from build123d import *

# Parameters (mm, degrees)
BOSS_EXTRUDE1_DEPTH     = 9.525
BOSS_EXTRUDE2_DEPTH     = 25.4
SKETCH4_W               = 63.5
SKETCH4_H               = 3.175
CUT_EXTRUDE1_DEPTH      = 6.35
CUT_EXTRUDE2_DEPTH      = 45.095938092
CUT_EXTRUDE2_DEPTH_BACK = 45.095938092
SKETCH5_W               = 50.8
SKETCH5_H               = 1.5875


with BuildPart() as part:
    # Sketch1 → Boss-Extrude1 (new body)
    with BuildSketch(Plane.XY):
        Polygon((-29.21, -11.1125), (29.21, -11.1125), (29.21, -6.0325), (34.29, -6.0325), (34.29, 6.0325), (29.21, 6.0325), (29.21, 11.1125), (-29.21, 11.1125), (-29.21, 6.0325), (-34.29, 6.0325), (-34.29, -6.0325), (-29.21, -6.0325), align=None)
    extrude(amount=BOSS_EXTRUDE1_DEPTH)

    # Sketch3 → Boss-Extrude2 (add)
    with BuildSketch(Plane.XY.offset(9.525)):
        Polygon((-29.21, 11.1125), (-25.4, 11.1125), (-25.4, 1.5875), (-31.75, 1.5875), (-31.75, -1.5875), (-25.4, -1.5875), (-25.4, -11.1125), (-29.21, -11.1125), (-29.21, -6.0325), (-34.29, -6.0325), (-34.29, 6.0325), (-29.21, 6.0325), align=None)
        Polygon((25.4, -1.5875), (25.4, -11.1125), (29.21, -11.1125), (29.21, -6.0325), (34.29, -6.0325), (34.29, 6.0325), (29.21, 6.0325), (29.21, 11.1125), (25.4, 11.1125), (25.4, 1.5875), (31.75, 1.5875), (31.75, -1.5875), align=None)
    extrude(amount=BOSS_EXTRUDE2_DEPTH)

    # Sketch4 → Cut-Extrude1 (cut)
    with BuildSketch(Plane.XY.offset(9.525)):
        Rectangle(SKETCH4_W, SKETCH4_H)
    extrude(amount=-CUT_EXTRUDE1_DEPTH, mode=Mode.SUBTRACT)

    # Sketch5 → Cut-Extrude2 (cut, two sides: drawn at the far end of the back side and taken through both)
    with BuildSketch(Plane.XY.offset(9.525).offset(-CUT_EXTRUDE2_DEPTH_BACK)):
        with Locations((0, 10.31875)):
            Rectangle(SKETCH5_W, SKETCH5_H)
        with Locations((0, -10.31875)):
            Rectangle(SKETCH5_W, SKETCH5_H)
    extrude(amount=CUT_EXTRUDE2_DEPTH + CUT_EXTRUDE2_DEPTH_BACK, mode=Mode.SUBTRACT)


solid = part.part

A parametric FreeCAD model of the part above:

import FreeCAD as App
import Part
import Sketcher

V = App.Vector
Q = App.Units.Quantity

doc = App.newDocument("Part")
params = doc.addObject("Spreadsheet::Sheet", "Params")
for row, (alias, value) in enumerate([
    ("sketch1_width", "2.3 in"),
    ("sketch1_width2", "0.2 in"),
    ("sketch1_height", "0.475 in"),
    ("pad1_length", "0.375 in"),
    ("sketch2_width", "0.2 in"),
    ("sketch2_width2", "0.15 in"),
    ("sketch2_width3", "0.25 in"),
    ("sketch2_height", "0.475 in"),
    ("pad2_length", "1 in"),
    ("sketch3_width", "2.5 in"),
    ("sketch3_height", "0.125 in"),
    ("pocket1_length", "0.25 in"),
    ("sketch4_width", "2 in"),
    ("sketch4_height", "0.0625 in"),
], start=1):
    params.set(f"A{row}", alias)
    params.set(f"B{row}", "=" + value)
    params.setAlias(f"B{row}", alias)

body = doc.addObject("PartDesign::Body", "Body")

# Sketch on XY plane
sketch1 = doc.addObject("Sketcher::SketchObject", "Sketch")
body.addObject(sketch1)
sketch1.AttachmentSupport = (doc.XY_Plane, [""])
sketch1.MapMode = "FlatFace"
sketch1.addGeometry(Part.LineSegment(V(-29.21, -11.1125, 0), V(29.21, -11.1125, 0)), False)
sketch1.addGeometry(Part.LineSegment(V(29.21, -11.1125, 0), V(29.21, -6.0325, 0)), False)
sketch1.addGeometry(Part.LineSegment(V(29.21, -6.0325, 0), V(34.29, -6.0325, 0)), False)
sketch1.addGeometry(Part.LineSegment(V(34.29, -6.0325, 0), V(34.29, 6.0325, 0)), False)
sketch1.addGeometry(Part.LineSegment(V(34.29, 6.0325, 0), V(29.21, 6.0325, 0)), False)
sketch1.addGeometry(Part.LineSegment(V(29.21, 6.0325, 0), V(29.21, 11.1125, 0)), False)
sketch1.addGeometry(Part.LineSegment(V(29.21, 11.1125, 0), V(-29.21, 11.1125, 0)), False)
sketch1.addGeometry(Part.LineSegment(V(-29.21, 11.1125, 0), V(-29.21, 6.0325, 0)), False)
sketch1.addGeometry(Part.LineSegment(V(-29.21, 6.0325, 0), V(-34.29, 6.0325, 0)), False)
sketch1.addGeometry(Part.LineSegment(V(-34.29, 6.0325, 0), V(-34.29, -6.0325, 0)), False)
sketch1.addGeometry(Part.LineSegment(V(-34.29, -6.0325, 0), V(-29.21, -6.0325, 0)), False)
sketch1.addGeometry(Part.LineSegment(V(-29.21, -6.0325, 0), V(-29.21, -11.1125, 0)), False)
sketch1.addConstraint(Sketcher.Constraint("Coincident", 0, 2, 1, 1))
sketch1.addConstraint(Sketcher.Constraint("Coincident", 1, 2, 2, 1))
sketch1.addConstraint(Sketcher.Constraint("Coincident", 2, 2, 3, 1))
sketch1.addConstraint(Sketcher.Constraint("Coincident", 3, 2, 4, 1))
sketch1.addConstraint(Sketcher.Constraint("Coincident", 4, 2, 5, 1))
sketch1.addConstraint(Sketcher.Constraint("Coincident", 5, 2, 6, 1))
sketch1.addConstraint(Sketcher.Constraint("Coincident", 6, 2, 7, 1))
sketch1.addConstraint(Sketcher.Constraint("Coincident", 7, 2, 8, 1))
sketch1.addConstraint(Sketcher.Constraint("Coincident", 8, 2, 9, 1))
sketch1.addConstraint(Sketcher.Constraint("Coincident", 9, 2, 10, 1))
sketch1.addConstraint(Sketcher.Constraint("Coincident", 10, 2, 11, 1))
sketch1.addConstraint(Sketcher.Constraint("Coincident", 11, 2, 0, 1))
sketch1.addConstraint(Sketcher.Constraint("Horizontal", 0))
sketch1.addConstraint(Sketcher.Constraint("Vertical", 1))
sketch1.addConstraint(Sketcher.Constraint("Horizontal", 2))
sketch1.addConstraint(Sketcher.Constraint("Vertical", 3))
sketch1.addConstraint(Sketcher.Constraint("Horizontal", 4))
sketch1.addConstraint(Sketcher.Constraint("Vertical", 5))
sketch1.addConstraint(Sketcher.Constraint("Horizontal", 6))
sketch1.addConstraint(Sketcher.Constraint("Vertical", 7))
sketch1.addConstraint(Sketcher.Constraint("Horizontal", 8))
sketch1.addConstraint(Sketcher.Constraint("Vertical", 9))
sketch1.addConstraint(Sketcher.Constraint("Horizontal", 10))
sketch1.addConstraint(Sketcher.Constraint("Vertical", 11))
sketch1.addConstraint(Sketcher.Constraint("Symmetric", 0, 2, 6, 2, -1, 1))
sketch1.addConstraint(Sketcher.Constraint("Symmetric", 2, 2, 8, 2, -1, 1))
sketch1.addConstraint(Sketcher.Constraint("Symmetric", 4, 2, 10, 2, -1, 1))
sketch1.addConstraint(Sketcher.Constraint("Symmetric", 4, 2, 7, 2, -2))
sketch1.addConstraint(Sketcher.Constraint("Equal", 10, 1))
sketch1.addConstraint(Sketcher.Constraint("DistanceX", 0, 1, 0, 2, Q("2.3 in")))
sketch1.addConstraint(Sketcher.Constraint("DistanceX", 2, 1, 2, 2, Q("0.2 in")))
sketch1.addConstraint(Sketcher.Constraint("DistanceY", 3, 1, 3, 2, Q("0.475 in")))
sketch1.setExpression("Constraints[29]", "Params.sketch1_width")
sketch1.setExpression("Constraints[30]", "Params.sketch1_width2")
sketch1.setExpression("Constraints[31]", "Params.sketch1_height")
pad1 = doc.addObject("PartDesign::Pad", "Pad")
body.addObject(pad1)
pad1.Profile = sketch1
pad1.setExpression("Length", "Params.pad1_length")

# Sketch on XY plane
sketch2 = doc.addObject("Sketcher::SketchObject", "Sketch001")
body.addObject(sketch2)
sketch2.AttachmentSupport = (doc.XY_Plane, [""])
sketch2.MapMode = "FlatFace"
sketch2.AttachmentOffset = App.Placement(V(0, 0, 0.375 * 25.4), App.Rotation())
sketch2.addGeometry(Part.LineSegment(V(-25.4, 11.1125, 0), V(-29.21, 11.1125, 0)), False)
sketch2.addGeometry(Part.LineSegment(V(-29.21, 11.1125, 0), V(-29.21, 6.0325, 0)), False)
sketch2.addGeometry(Part.LineSegment(V(-29.21, 6.0325, 0), V(-34.29, 6.0325, 0)), False)
sketch2.addGeometry(Part.LineSegment(V(-34.29, 6.0325, 0), V(-34.29, -6.0325, 0)), False)
sketch2.addGeometry(Part.LineSegment(V(-34.29, -6.0325, 0), V(-29.21, -6.0325, 0)), False)
sketch2.addGeometry(Part.LineSegment(V(-29.21, -6.0325, 0), V(-29.21, -11.1125, 0)), False)
sketch2.addGeometry(Part.LineSegment(V(-29.21, -11.1125, 0), V(-25.4, -11.1125, 0)), False)
sketch2.addGeometry(Part.LineSegment(V(-25.4, -11.1125, 0), V(-25.4, -1.5875, 0)), False)
sketch2.addGeometry(Part.LineSegment(V(-25.4, -1.5875, 0), V(-31.75, -1.5875, 0)), False)
sketch2.addGeometry(Part.LineSegment(V(-31.75, -1.5875, 0), V(-31.75, 1.5875, 0)), False)
sketch2.addGeometry(Part.LineSegment(V(-31.75, 1.5875, 0), V(-25.4, 1.5875, 0)), False)
sketch2.addGeometry(Part.LineSegment(V(-25.4, 1.5875, 0), V(-25.4, 11.1125, 0)), False)
sketch2.addGeometry(Part.LineSegment(V(25.4, -1.5875, 0), V(25.4, -11.1125, 0)), False)
sketch2.addGeometry(Part.LineSegment(V(25.4, -11.1125, 0), V(29.21, -11.1125, 0)), False)
sketch2.addGeometry(Part.LineSegment(V(29.21, -11.1125, 0), V(29.21, -6.0325, 0)), False)
sketch2.addGeometry(Part.LineSegment(V(29.21, -6.0325, 0), V(34.29, -6.0325, 0)), False)
sketch2.addGeometry(Part.LineSegment(V(34.29, -6.0325, 0), V(34.29, 6.0325, 0)), False)
sketch2.addGeometry(Part.LineSegment(V(34.29, 6.0325, 0), V(29.21, 6.0325, 0)), False)
sketch2.addGeometry(Part.LineSegment(V(29.21, 6.0325, 0), V(29.21, 11.1125, 0)), False)
sketch2.addGeometry(Part.LineSegment(V(29.21, 11.1125, 0), V(25.4, 11.1125, 0)), False)
sketch2.addGeometry(Part.LineSegment(V(25.4, 11.1125, 0), V(25.4, 1.5875, 0)), False)
sketch2.addGeometry(Part.LineSegment(V(25.4, 1.5875, 0), V(31.75, 1.5875, 0)), False)
sketch2.addGeometry(Part.LineSegment(V(31.75, 1.5875, 0), V(31.75, -1.5875, 0)), False)
sketch2.addGeometry(Part.LineSegment(V(31.75, -1.5875, 0), V(25.4, -1.5875, 0)), False)
sketch2.addConstraint(Sketcher.Constraint("Coincident", 0, 2, 1, 1))
sketch2.addConstraint(Sketcher.Constraint("Coincident", 1, 2, 2, 1))
sketch2.addConstraint(Sketcher.Constraint("Coincident", 2, 2, 3, 1))
sketch2.addConstraint(Sketcher.Constraint("Coincident", 3, 2, 4, 1))
sketch2.addConstraint(Sketcher.Constraint("Coincident", 4, 2, 5, 1))
sketch2.addConstraint(Sketcher.Constraint("Coincident", 5, 2, 6, 1))
sketch2.addConstraint(Sketcher.Constraint("Coincident", 6, 2, 7, 1))
sketch2.addConstraint(Sketcher.Constraint("Coincident", 7, 2, 8, 1))
sketch2.addConstraint(Sketcher.Constraint("Coincident", 8, 2, 9, 1))
sketch2.addConstraint(Sketcher.Constraint("Coincident", 9, 2, 10, 1))
sketch2.addConstraint(Sketcher.Constraint("Coincident", 10, 2, 11, 1))
sketch2.addConstraint(Sketcher.Constraint("Coincident", 11, 2, 0, 1))
sketch2.addConstraint(Sketcher.Constraint("Coincident", 12, 2, 13, 1))
sketch2.addConstraint(Sketcher.Constraint("Coincident", 13, 2, 14, 1))
sketch2.addConstraint(Sketcher.Constraint("Coincident", 14, 2, 15, 1))
sketch2.addConstraint(Sketcher.Constraint("Coincident", 15, 2, 16, 1))
sketch2.addConstraint(Sketcher.Constraint("Coincident", 16, 2, 17, 1))
sketch2.addConstraint(Sketcher.Constraint("Coincident", 17, 2, 18, 1))
sketch2.addConstraint(Sketcher.Constraint("Coincident", 18, 2, 19, 1))
sketch2.addConstraint(Sketcher.Constraint("Coincident", 19, 2, 20, 1))
sketch2.addConstraint(Sketcher.Constraint("Coincident", 20, 2, 21, 1))
sketch2.addConstraint(Sketcher.Constraint("Coincident", 21, 2, 22, 1))
sketch2.addConstraint(Sketcher.Constraint("Coincident", 22, 2, 23, 1))
sketch2.addConstraint(Sketcher.Constraint("Coincident", 23, 2, 12, 1))
sketch2.addConstraint(Sketcher.Constraint("Horizontal", 0))
sketch2.addConstraint(Sketcher.Constraint("Vertical", 1))
sketch2.addConstraint(Sketcher.Constraint("Horizontal", 2))
sketch2.addConstraint(Sketcher.Constraint("Vertical", 3))
sketch2.addConstraint(Sketcher.Constraint("Horizontal", 4))
sketch2.addConstraint(Sketcher.Constraint("Vertical", 5))
sketch2.addConstraint(Sketcher.Constraint("Horizontal", 6))
sketch2.addConstraint(Sketcher.Constraint("Vertical", 7))
sketch2.addConstraint(Sketcher.Constraint("Horizontal", 8))
sketch2.addConstraint(Sketcher.Constraint("Vertical", 9))
sketch2.addConstraint(Sketcher.Constraint("Horizontal", 10))
sketch2.addConstraint(Sketcher.Constraint("Vertical", 11))
sketch2.addConstraint(Sketcher.Constraint("Vertical", 12))
sketch2.addConstraint(Sketcher.Constraint("Horizontal", 13))
sketch2.addConstraint(Sketcher.Constraint("Vertical", 14))
sketch2.addConstraint(Sketcher.Constraint("Horizontal", 15))
sketch2.addConstraint(Sketcher.Constraint("Vertical", 16))
sketch2.addConstraint(Sketcher.Constraint("Horizontal", 17))
sketch2.addConstraint(Sketcher.Constraint("Vertical", 18))
sketch2.addConstraint(Sketcher.Constraint("Horizontal", 19))
sketch2.addConstraint(Sketcher.Constraint("Vertical", 20))
sketch2.addConstraint(Sketcher.Constraint("Horizontal", 21))
sketch2.addConstraint(Sketcher.Constraint("Vertical", 22))
sketch2.addConstraint(Sketcher.Constraint("Horizontal", 23))
sketch2.addConstraint(Sketcher.Constraint("Symmetric", 11, 2, 12, 2, -1, 1))
sketch2.addConstraint(Sketcher.Constraint("Symmetric", 1, 2, 14, 2, -1, 1))
sketch2.addConstraint(Sketcher.Constraint("Symmetric", 3, 2, 16, 2, -1, 1))
sketch2.addConstraint(Sketcher.Constraint("Symmetric", 5, 2, 18, 2, -1, 1))
sketch2.addConstraint(Sketcher.Constraint("Symmetric", 7, 2, 20, 2, -1, 1))
sketch2.addConstraint(Sketcher.Constraint("Symmetric", 9, 2, 22, 2, -1, 1))
sketch2.addConstraint(Sketcher.Constraint("Symmetric", 6, 2, 12, 2, -2))
sketch2.addConstraint(Sketcher.Constraint("Symmetric", 4, 2, 14, 2, -2))
sketch2.addConstraint(Sketcher.Constraint("Horizontal", 10, 2, 20, 2))
sketch2.addConstraint(Sketcher.Constraint("Equal", 17, 1))
sketch2.addConstraint(Sketcher.Constraint("DistanceX", 2, 2, 2, 1, Q("0.2 in")))
sketch2.addConstraint(Sketcher.Constraint("DistanceX", 6, 2, -1, 1, Q("1 in")))
sketch2.addConstraint(Sketcher.Constraint("DistanceX", 0, 2, 0, 1, Q("0.15 in")))
sketch2.addConstraint(Sketcher.Constraint("DistanceX", 8, 2, 8, 1, Q("0.25 in")))
sketch2.addConstraint(Sketcher.Constraint("DistanceY", 7, 2, 1, 2, Q("0.3 in")))
sketch2.addConstraint(Sketcher.Constraint("DistanceY", 3, 2, 3, 1, Q("0.475 in")))
sketch2.setExpression("Constraints[58]", "Params.sketch2_width")
sketch2.setExpression("Constraints[60]", "Params.sketch2_width2")
sketch2.setExpression("Constraints[61]", "Params.sketch2_width3")
sketch2.setExpression("Constraints[63]", "Params.sketch2_height")
pad2 = doc.addObject("PartDesign::Pad", "Pad001")
body.addObject(pad2)
pad2.Profile = sketch2
pad2.setExpression("Length", "Params.pad2_length")

# Sketch on XY plane
sketch3 = doc.addObject("Sketcher::SketchObject", "Sketch002")
body.addObject(sketch3)
sketch3.AttachmentSupport = (doc.XY_Plane, [""])
sketch3.MapMode = "FlatFace"
sketch3.AttachmentOffset = App.Placement(V(0, 0, 0.375 * 25.4), App.Rotation())
sketch3.addGeometry(Part.LineSegment(V(-31.75, 1.5875, 0), V(-31.75, -1.5875, 0)), False)
sketch3.addGeometry(Part.LineSegment(V(-31.75, -1.5875, 0), V(31.75, -1.5875, 0)), False)
sketch3.addGeometry(Part.LineSegment(V(31.75, -1.5875, 0), V(31.75, 1.5875, 0)), False)
sketch3.addGeometry(Part.LineSegment(V(31.75, 1.5875, 0), V(-31.75, 1.5875, 0)), False)
sketch3.addConstraint(Sketcher.Constraint("Coincident", 0, 2, 1, 1))
sketch3.addConstraint(Sketcher.Constraint("Coincident", 1, 2, 2, 1))
sketch3.addConstraint(Sketcher.Constraint("Coincident", 2, 2, 3, 1))
sketch3.addConstraint(Sketcher.Constraint("Coincident", 3, 2, 0, 1))
sketch3.addConstraint(Sketcher.Constraint("Vertical", 0))
sketch3.addConstraint(Sketcher.Constraint("Horizontal", 1))
sketch3.addConstraint(Sketcher.Constraint("Vertical", 2))
sketch3.addConstraint(Sketcher.Constraint("Horizontal", 3))
sketch3.addConstraint(Sketcher.Constraint("Symmetric", 0, 2, 2, 2, -1, 1))
sketch3.addConstraint(Sketcher.Constraint("DistanceX", 1, 1, 1, 2, Q("2.5 in")))
sketch3.addConstraint(Sketcher.Constraint("DistanceY", 0, 2, 0, 1, Q("0.125 in")))
sketch3.setExpression("Constraints[9]", "Params.sketch3_width")
sketch3.setExpression("Constraints[10]", "Params.sketch3_height")
pocket1 = doc.addObject("PartDesign::Pocket", "Pocket")
body.addObject(pocket1)
pocket1.Profile = sketch3
pocket1.setExpression("Length", "Params.pocket1_length")

# Sketch on XY plane
sketch4 = doc.addObject("Sketcher::SketchObject", "Sketch003")
body.addObject(sketch4)
sketch4.AttachmentSupport = (doc.XY_Plane, [""])
sketch4.MapMode = "FlatFace"
sketch4.AttachmentOffset = App.Placement(V(0, 0, 0.375 * 25.4), App.Rotation())
sketch4.addGeometry(Part.LineSegment(V(-25.4, 11.1125, 0), V(-25.4, 9.525, 0)), False)
sketch4.addGeometry(Part.LineSegment(V(-25.4, 9.525, 0), V(25.4, 9.525, 0)), False)
sketch4.addGeometry(Part.LineSegment(V(25.4, 9.525, 0), V(25.4, 11.1125, 0)), False)
sketch4.addGeometry(Part.LineSegment(V(25.4, 11.1125, 0), V(-25.4, 11.1125, 0)), False)
sketch4.addGeometry(Part.LineSegment(V(-25.4, -9.525, 0), V(-25.4, -11.1125, 0)), False)
sketch4.addGeometry(Part.LineSegment(V(-25.4, -11.1125, 0), V(25.4, -11.1125, 0)), False)
sketch4.addGeometry(Part.LineSegment(V(25.4, -11.1125, 0), V(25.4, -9.525, 0)), False)
sketch4.addGeometry(Part.LineSegment(V(25.4, -9.525, 0), V(-25.4, -9.525, 0)), False)
sketch4.addConstraint(Sketcher.Constraint("Coincident", 0, 2, 1, 1))
sketch4.addConstraint(Sketcher.Constraint("Coincident", 1, 2, 2, 1))
sketch4.addConstraint(Sketcher.Constraint("Coincident", 2, 2, 3, 1))
sketch4.addConstraint(Sketcher.Constraint("Coincident", 3, 2, 0, 1))
sketch4.addConstraint(Sketcher.Constraint("Coincident", 4, 2, 5, 1))
sketch4.addConstraint(Sketcher.Constraint("Coincident", 5, 2, 6, 1))
sketch4.addConstraint(Sketcher.Constraint("Coincident", 6, 2, 7, 1))
sketch4.addConstraint(Sketcher.Constraint("Coincident", 7, 2, 4, 1))
sketch4.addConstraint(Sketcher.Constraint("Vertical", 0))
sketch4.addConstraint(Sketcher.Constraint("Horizontal", 1))
sketch4.addConstraint(Sketcher.Constraint("Vertical", 2))
sketch4.addConstraint(Sketcher.Constraint("Horizontal", 3))
sketch4.addConstraint(Sketcher.Constraint("Vertical", 4))
sketch4.addConstraint(Sketcher.Constraint("Horizontal", 5))
sketch4.addConstraint(Sketcher.Constraint("Vertical", 6))
sketch4.addConstraint(Sketcher.Constraint("Horizontal", 7))
sketch4.addConstraint(Sketcher.Constraint("Symmetric", 2, 2, 4, 2, -1, 1))
sketch4.addConstraint(Sketcher.Constraint("Symmetric", 0, 2, 6, 2, -1, 1))
sketch4.addConstraint(Sketcher.Constraint("Vertical", 3, 2, 4, 2))
sketch4.addConstraint(Sketcher.Constraint("DistanceX", 1, 1, 1, 2, Q("2 in")))
sketch4.addConstraint(Sketcher.Constraint("DistanceY", 0, 2, 0, 1, Q("0.0625 in")))
sketch4.addConstraint(Sketcher.Constraint("DistanceY", 6, 2, 1, 2, Q("0.75 in")))
sketch4.setExpression("Constraints[19]", "Params.sketch4_width")
sketch4.setExpression("Constraints[20]", "Params.sketch4_height")
pocket2 = doc.addObject("PartDesign::Pocket", "Pocket001")
body.addObject(pocket2)
pocket2.Profile = sketch4
pocket2.Type = "ThroughAll"
pocket2.Midplane = True

doc.recompute()
